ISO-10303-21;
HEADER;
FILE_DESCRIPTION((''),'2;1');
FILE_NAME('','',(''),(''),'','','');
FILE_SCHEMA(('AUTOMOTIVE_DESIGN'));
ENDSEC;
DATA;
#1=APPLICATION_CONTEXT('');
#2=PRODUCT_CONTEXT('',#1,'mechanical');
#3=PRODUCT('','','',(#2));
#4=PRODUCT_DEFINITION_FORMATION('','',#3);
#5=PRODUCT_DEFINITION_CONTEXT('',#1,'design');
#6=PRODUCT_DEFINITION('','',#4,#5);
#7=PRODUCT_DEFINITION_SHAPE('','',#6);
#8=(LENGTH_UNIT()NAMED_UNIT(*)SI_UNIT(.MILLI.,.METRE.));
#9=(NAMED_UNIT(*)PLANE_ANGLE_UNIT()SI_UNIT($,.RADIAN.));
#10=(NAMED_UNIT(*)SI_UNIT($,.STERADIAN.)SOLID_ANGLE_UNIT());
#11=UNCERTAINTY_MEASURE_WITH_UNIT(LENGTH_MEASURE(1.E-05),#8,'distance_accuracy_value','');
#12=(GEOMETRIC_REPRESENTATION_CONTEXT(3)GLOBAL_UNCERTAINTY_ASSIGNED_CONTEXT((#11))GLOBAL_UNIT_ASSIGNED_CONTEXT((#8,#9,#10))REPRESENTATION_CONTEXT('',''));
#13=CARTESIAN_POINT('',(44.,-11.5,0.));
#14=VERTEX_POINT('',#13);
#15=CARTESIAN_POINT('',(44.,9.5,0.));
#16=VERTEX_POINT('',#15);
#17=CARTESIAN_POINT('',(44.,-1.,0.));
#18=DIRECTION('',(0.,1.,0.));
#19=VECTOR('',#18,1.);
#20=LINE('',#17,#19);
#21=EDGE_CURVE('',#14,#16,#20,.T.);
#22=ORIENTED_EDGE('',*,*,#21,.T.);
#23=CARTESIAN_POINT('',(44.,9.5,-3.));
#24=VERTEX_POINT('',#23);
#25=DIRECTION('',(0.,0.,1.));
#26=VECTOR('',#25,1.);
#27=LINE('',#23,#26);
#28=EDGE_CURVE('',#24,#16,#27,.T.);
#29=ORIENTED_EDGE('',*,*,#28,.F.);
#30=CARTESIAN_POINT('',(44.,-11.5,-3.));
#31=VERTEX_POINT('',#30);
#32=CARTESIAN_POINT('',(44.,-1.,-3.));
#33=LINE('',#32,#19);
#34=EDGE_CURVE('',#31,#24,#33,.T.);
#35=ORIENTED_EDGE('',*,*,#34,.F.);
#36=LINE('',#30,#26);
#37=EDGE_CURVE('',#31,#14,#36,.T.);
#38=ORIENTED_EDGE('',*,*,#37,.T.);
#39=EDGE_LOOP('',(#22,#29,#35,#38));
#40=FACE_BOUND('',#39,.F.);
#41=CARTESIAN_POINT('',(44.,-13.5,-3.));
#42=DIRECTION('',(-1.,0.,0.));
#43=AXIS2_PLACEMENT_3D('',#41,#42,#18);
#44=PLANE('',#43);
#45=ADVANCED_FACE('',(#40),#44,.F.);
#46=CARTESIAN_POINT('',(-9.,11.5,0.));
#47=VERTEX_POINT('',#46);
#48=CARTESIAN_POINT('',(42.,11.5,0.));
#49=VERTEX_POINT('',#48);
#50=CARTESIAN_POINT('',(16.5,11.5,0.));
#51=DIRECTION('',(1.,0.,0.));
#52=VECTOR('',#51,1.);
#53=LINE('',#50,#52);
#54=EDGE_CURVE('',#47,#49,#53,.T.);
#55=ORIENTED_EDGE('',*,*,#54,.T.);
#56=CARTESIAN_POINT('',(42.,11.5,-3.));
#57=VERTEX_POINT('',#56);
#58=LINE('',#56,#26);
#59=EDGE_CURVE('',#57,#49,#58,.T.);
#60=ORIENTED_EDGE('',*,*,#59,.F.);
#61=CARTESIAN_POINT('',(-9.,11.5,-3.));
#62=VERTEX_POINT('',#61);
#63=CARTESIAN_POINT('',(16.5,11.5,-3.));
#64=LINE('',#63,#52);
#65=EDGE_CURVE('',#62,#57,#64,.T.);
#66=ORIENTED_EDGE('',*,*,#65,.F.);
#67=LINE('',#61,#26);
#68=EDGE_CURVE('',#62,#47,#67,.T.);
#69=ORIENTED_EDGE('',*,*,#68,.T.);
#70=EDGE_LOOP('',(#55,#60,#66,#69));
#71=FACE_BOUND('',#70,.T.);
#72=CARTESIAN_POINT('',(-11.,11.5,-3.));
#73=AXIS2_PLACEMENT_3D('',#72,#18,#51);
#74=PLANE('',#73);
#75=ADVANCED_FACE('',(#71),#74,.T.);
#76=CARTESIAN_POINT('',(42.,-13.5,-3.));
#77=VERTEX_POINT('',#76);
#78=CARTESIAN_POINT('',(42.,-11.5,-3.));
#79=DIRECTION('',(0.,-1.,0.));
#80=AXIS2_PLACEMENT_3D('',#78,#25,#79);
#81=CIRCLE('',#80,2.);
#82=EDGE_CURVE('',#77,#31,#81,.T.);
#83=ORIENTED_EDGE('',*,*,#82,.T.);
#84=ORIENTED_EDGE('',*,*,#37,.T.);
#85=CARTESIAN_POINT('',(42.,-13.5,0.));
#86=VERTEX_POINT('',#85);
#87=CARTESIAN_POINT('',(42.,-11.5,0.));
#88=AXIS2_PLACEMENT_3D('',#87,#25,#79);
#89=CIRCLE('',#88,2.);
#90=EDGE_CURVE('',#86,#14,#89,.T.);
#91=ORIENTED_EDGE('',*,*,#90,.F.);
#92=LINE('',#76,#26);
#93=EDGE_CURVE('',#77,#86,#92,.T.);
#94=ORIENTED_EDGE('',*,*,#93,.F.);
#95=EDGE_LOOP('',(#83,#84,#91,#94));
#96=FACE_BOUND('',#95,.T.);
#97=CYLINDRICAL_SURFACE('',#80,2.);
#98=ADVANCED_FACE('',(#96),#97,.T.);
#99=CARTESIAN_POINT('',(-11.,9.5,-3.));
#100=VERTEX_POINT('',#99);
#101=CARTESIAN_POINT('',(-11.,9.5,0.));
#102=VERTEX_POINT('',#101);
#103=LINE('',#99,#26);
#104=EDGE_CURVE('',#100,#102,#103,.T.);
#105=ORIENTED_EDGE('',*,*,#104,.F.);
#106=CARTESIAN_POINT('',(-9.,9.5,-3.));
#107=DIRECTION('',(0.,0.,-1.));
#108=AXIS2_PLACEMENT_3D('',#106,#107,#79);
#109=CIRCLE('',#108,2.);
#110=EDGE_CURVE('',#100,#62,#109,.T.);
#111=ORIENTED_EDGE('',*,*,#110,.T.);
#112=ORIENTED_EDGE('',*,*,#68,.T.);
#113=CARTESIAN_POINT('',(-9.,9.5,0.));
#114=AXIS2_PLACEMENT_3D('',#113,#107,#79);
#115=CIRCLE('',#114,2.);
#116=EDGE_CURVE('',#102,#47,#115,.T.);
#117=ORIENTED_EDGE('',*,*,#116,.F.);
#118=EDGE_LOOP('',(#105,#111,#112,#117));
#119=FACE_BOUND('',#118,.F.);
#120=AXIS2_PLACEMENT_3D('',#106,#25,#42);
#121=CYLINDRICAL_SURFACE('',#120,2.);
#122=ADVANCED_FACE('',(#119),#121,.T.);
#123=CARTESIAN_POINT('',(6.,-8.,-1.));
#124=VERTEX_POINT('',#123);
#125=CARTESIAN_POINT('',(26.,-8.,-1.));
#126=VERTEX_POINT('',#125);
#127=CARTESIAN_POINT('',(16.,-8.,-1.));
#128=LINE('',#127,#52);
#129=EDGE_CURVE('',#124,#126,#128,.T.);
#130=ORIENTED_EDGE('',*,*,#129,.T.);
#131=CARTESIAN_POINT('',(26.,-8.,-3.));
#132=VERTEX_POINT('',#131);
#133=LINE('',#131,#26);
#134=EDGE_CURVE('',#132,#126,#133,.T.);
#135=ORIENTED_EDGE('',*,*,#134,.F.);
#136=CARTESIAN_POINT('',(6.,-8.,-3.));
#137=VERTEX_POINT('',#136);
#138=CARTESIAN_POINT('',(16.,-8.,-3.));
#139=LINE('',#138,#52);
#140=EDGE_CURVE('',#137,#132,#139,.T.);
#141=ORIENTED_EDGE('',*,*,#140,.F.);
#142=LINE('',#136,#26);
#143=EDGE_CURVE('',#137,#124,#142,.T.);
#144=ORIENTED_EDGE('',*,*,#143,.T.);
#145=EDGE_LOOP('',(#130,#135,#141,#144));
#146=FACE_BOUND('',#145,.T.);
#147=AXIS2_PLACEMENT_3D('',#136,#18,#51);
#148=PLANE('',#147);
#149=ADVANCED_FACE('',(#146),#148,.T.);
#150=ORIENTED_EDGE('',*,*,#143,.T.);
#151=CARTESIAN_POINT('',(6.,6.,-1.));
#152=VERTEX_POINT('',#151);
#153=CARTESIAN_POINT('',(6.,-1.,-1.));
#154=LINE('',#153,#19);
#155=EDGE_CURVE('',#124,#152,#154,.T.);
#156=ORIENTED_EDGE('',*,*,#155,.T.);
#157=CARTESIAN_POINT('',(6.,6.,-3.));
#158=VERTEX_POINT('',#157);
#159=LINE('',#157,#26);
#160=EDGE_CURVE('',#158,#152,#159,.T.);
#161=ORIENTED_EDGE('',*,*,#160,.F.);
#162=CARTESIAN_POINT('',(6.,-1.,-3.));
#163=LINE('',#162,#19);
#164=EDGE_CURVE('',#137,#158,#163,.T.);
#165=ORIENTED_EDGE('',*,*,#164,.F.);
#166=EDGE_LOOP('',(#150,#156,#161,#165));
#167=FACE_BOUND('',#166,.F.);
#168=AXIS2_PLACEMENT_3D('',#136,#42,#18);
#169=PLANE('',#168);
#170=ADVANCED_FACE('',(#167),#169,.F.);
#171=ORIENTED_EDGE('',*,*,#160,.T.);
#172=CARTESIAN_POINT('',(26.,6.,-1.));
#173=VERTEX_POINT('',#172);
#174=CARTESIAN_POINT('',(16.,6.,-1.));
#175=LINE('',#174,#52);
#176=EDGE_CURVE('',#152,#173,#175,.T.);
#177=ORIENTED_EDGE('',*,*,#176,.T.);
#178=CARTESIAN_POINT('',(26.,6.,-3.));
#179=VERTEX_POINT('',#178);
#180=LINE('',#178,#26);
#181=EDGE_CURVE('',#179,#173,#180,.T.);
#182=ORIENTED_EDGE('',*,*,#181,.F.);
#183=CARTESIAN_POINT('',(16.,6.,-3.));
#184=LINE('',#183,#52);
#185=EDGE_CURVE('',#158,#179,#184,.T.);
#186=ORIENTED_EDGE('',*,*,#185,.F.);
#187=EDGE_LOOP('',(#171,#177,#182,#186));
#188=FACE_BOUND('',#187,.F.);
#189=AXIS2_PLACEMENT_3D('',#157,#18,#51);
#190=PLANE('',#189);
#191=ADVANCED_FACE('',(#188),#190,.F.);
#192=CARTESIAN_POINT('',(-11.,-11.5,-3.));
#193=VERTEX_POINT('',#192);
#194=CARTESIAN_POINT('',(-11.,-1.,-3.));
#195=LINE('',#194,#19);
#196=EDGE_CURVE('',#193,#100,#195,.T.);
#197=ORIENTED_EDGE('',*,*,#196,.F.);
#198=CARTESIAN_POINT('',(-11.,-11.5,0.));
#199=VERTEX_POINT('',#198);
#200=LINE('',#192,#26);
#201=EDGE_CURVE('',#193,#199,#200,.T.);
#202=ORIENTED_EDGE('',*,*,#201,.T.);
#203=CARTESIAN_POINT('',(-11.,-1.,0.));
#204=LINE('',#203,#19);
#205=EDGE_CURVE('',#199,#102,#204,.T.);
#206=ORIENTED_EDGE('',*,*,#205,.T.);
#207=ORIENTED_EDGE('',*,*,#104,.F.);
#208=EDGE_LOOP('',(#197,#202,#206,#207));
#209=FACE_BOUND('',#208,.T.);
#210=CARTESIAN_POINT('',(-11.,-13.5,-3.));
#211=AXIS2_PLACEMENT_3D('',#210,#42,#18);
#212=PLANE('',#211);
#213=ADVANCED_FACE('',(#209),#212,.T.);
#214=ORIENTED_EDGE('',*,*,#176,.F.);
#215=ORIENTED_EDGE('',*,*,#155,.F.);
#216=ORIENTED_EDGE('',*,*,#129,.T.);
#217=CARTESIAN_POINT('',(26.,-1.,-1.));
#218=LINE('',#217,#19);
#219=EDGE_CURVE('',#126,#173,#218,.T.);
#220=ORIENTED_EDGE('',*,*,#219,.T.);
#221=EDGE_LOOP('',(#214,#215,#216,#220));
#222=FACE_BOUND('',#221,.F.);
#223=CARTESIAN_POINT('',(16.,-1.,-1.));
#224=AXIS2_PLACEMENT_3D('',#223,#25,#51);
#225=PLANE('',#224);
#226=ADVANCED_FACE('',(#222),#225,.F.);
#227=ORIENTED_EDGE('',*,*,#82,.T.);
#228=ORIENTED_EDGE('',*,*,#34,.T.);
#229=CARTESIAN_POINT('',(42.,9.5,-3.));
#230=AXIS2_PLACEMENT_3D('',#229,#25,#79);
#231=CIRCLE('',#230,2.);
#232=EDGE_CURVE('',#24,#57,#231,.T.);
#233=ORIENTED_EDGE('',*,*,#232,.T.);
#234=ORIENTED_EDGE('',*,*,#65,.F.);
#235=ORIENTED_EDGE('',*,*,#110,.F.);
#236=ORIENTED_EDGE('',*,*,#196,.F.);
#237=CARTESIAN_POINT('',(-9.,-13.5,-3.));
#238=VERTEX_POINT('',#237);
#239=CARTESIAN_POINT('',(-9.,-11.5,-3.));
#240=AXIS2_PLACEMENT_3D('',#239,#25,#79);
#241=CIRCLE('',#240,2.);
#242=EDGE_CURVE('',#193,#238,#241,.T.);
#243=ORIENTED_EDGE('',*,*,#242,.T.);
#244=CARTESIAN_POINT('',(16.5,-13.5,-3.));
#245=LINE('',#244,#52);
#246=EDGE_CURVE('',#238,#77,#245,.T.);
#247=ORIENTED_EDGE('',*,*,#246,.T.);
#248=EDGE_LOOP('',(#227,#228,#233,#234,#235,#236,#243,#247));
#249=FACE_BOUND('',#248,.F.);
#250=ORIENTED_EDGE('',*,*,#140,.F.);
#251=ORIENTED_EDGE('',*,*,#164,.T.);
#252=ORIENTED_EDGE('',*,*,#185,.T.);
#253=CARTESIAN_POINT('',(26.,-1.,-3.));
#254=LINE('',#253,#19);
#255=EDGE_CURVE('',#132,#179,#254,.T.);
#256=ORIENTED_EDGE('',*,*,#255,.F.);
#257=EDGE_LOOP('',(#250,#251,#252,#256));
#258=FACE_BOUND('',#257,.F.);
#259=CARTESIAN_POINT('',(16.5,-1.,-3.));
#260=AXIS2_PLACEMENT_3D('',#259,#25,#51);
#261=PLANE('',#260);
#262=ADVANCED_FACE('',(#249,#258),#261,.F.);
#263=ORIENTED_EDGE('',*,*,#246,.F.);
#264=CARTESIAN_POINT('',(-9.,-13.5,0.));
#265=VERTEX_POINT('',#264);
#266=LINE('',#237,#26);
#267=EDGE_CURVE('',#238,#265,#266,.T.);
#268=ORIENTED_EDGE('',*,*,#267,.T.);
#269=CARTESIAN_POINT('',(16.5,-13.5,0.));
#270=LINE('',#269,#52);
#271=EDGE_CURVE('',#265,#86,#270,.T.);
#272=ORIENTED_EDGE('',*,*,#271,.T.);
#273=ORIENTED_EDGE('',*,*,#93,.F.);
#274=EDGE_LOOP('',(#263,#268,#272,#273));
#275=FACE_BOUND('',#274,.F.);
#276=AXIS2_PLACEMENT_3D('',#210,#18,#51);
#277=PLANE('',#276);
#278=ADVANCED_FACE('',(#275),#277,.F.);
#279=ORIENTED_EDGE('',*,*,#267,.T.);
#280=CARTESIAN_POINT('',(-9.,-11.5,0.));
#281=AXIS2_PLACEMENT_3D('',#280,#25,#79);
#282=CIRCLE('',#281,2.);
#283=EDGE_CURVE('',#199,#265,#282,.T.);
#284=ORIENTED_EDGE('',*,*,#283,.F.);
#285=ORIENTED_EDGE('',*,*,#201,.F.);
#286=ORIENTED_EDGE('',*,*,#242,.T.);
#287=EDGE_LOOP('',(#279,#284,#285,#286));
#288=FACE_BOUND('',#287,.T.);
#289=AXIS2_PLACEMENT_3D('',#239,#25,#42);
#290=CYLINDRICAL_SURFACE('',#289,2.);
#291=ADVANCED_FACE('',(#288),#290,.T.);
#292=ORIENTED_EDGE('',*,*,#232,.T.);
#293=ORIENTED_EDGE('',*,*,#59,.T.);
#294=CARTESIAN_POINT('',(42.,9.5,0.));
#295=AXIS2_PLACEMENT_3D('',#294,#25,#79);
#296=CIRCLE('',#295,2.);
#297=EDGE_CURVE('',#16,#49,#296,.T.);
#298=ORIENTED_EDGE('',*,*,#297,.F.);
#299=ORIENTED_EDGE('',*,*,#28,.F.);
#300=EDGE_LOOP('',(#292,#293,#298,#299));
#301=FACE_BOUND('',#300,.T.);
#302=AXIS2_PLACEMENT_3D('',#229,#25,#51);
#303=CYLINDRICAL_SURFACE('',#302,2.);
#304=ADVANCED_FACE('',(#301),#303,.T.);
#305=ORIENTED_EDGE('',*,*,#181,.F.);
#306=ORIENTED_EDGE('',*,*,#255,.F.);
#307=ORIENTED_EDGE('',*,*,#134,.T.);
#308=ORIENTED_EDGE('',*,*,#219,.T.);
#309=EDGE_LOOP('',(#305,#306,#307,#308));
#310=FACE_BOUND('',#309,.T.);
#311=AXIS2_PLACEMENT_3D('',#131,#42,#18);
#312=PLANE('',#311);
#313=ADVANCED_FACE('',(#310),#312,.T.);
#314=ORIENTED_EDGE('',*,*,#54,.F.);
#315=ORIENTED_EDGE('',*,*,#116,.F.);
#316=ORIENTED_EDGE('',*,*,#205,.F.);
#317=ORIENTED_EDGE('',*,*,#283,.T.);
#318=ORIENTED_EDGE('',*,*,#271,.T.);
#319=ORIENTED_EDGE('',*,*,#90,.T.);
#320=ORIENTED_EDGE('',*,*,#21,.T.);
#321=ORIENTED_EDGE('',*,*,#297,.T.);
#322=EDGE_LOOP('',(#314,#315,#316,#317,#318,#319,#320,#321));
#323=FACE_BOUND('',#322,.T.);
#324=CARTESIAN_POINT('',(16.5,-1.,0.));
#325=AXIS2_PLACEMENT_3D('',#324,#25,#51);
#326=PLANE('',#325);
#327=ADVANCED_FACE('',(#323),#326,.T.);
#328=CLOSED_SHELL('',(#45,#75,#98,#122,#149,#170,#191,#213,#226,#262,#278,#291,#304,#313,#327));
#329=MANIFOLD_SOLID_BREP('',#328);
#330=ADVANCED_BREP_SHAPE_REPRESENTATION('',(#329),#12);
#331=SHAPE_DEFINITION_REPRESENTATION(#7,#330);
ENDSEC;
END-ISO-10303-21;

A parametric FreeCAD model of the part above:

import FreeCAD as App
import Part
import Sketcher


def edges_at(feature, points):
    """Names of the edges that pass closest to the given points."""
    edges = feature.Shape.Edges
    near = lambda p: min(range(len(edges)), key=lambda i: edges[i].distToShape(Part.Vertex(*p))[0])
    return sorted({f"Edge{near(p) + 1}" for p in points})


def add_polygon(sketch, points):
    """Adds a closed chain of lines whose ends are joined by coincident constraints."""
    first, n = sketch.GeometryCount, len(points)
    for a, b in zip(points, points[1:] + points[:1]):
        sketch.addGeometry(Part.LineSegment(App.Vector(*a, 0), App.Vector(*b, 0)), False)
    for i in range(n):
        sketch.addConstraint(Sketcher.Constraint("Coincident", first + i, 2, first + (i + 1) % n, 1))

doc = App.newDocument("Part")
body = doc.addObject("PartDesign::Body", "Body")

sketch1 = body.newObject("Sketcher::SketchObject", "Sketch")
sketch1.AttachmentSupport = (doc.getObject("XY_Plane"), [""])
sketch1.MapMode = "FlatFace"
sketch1.AttachmentOffset = App.Placement(App.Vector(0, 0, -3), App.Rotation())
add_polygon(sketch1, [(6, 6), (6, -8), (26, -8), (26, 6)])
sketch1.addConstraint([
    Sketcher.Constraint("Vertical", 0),
    Sketcher.Constraint("Horizontal", 1),
    Sketcher.Constraint("Vertical", 2),
    Sketcher.Constraint("Horizontal", 3),
    Sketcher.Constraint("DistanceX", 1, 1, 1, 2, 20.0),
    Sketcher.Constraint("DistanceY", 0, 2, 0, 1, 14.0),
    Sketcher.Constraint("DistanceX", -1, 1, 0, 2, 6.0),
    Sketcher.Constraint("DistanceY", 0, 2, -1, 1, 8.0),
])
pad1 = body.newObject("PartDesign::Pad", "Pad")
pad1.Profile = sketch1
pad1.Length = 2
body2 = doc.addObject("PartDesign::Body", "Body001")

sketch2 = body2.newObject("Sketcher::SketchObject", "Sketch001")
sketch2.AttachmentSupport = (doc.getObject("XY_Plane001"), [""])
sketch2.MapMode = "FlatFace"
sketch2.AttachmentOffset = App.Placement(App.Vector(0, 0, -3), App.Rotation())
add_polygon(sketch2, [(-11, 12), (-11, -14), (44, -14), (44, 12)])
sketch2.addConstraint([
    Sketcher.Constraint("Vertical", 0),
    Sketcher.Constraint("Horizontal", 1),
    Sketcher.Constraint("Vertical", 2),
    Sketcher.Constraint("Horizontal", 3),
    Sketcher.Constraint("DistanceX", 1, 1, 1, 2, 55.0),
    Sketcher.Constraint("DistanceY", 0, 2, 0, 1, 25.0),
    Sketcher.Constraint("DistanceX", 0, 2, -1, 1, 11.0),
    Sketcher.Constraint("DistanceY", 0, 2, -1, 1, 13.5),
])
pad2 = body2.newObject("PartDesign::Pad", "Pad001")
pad2.Profile = sketch2
pad2.Length = 3
doc.recompute()

fillet = body2.newObject("PartDesign::Fillet", "Fillet")
fillet.Base = (pad2, edges_at(pad2, [
    (-11, -13.5, -1.5),
    (-11, 11.5, -1.5),
    (44, -13.5, -1.5),
    (44, 11.5, -1.5),
]))
fillet.Radius = 2
doc.recompute()

boolean = body2.newObject("PartDesign::Boolean", "Boolean")
boolean.Type = "Cut"
boolean.addObjects([body])

doc.recompute()
